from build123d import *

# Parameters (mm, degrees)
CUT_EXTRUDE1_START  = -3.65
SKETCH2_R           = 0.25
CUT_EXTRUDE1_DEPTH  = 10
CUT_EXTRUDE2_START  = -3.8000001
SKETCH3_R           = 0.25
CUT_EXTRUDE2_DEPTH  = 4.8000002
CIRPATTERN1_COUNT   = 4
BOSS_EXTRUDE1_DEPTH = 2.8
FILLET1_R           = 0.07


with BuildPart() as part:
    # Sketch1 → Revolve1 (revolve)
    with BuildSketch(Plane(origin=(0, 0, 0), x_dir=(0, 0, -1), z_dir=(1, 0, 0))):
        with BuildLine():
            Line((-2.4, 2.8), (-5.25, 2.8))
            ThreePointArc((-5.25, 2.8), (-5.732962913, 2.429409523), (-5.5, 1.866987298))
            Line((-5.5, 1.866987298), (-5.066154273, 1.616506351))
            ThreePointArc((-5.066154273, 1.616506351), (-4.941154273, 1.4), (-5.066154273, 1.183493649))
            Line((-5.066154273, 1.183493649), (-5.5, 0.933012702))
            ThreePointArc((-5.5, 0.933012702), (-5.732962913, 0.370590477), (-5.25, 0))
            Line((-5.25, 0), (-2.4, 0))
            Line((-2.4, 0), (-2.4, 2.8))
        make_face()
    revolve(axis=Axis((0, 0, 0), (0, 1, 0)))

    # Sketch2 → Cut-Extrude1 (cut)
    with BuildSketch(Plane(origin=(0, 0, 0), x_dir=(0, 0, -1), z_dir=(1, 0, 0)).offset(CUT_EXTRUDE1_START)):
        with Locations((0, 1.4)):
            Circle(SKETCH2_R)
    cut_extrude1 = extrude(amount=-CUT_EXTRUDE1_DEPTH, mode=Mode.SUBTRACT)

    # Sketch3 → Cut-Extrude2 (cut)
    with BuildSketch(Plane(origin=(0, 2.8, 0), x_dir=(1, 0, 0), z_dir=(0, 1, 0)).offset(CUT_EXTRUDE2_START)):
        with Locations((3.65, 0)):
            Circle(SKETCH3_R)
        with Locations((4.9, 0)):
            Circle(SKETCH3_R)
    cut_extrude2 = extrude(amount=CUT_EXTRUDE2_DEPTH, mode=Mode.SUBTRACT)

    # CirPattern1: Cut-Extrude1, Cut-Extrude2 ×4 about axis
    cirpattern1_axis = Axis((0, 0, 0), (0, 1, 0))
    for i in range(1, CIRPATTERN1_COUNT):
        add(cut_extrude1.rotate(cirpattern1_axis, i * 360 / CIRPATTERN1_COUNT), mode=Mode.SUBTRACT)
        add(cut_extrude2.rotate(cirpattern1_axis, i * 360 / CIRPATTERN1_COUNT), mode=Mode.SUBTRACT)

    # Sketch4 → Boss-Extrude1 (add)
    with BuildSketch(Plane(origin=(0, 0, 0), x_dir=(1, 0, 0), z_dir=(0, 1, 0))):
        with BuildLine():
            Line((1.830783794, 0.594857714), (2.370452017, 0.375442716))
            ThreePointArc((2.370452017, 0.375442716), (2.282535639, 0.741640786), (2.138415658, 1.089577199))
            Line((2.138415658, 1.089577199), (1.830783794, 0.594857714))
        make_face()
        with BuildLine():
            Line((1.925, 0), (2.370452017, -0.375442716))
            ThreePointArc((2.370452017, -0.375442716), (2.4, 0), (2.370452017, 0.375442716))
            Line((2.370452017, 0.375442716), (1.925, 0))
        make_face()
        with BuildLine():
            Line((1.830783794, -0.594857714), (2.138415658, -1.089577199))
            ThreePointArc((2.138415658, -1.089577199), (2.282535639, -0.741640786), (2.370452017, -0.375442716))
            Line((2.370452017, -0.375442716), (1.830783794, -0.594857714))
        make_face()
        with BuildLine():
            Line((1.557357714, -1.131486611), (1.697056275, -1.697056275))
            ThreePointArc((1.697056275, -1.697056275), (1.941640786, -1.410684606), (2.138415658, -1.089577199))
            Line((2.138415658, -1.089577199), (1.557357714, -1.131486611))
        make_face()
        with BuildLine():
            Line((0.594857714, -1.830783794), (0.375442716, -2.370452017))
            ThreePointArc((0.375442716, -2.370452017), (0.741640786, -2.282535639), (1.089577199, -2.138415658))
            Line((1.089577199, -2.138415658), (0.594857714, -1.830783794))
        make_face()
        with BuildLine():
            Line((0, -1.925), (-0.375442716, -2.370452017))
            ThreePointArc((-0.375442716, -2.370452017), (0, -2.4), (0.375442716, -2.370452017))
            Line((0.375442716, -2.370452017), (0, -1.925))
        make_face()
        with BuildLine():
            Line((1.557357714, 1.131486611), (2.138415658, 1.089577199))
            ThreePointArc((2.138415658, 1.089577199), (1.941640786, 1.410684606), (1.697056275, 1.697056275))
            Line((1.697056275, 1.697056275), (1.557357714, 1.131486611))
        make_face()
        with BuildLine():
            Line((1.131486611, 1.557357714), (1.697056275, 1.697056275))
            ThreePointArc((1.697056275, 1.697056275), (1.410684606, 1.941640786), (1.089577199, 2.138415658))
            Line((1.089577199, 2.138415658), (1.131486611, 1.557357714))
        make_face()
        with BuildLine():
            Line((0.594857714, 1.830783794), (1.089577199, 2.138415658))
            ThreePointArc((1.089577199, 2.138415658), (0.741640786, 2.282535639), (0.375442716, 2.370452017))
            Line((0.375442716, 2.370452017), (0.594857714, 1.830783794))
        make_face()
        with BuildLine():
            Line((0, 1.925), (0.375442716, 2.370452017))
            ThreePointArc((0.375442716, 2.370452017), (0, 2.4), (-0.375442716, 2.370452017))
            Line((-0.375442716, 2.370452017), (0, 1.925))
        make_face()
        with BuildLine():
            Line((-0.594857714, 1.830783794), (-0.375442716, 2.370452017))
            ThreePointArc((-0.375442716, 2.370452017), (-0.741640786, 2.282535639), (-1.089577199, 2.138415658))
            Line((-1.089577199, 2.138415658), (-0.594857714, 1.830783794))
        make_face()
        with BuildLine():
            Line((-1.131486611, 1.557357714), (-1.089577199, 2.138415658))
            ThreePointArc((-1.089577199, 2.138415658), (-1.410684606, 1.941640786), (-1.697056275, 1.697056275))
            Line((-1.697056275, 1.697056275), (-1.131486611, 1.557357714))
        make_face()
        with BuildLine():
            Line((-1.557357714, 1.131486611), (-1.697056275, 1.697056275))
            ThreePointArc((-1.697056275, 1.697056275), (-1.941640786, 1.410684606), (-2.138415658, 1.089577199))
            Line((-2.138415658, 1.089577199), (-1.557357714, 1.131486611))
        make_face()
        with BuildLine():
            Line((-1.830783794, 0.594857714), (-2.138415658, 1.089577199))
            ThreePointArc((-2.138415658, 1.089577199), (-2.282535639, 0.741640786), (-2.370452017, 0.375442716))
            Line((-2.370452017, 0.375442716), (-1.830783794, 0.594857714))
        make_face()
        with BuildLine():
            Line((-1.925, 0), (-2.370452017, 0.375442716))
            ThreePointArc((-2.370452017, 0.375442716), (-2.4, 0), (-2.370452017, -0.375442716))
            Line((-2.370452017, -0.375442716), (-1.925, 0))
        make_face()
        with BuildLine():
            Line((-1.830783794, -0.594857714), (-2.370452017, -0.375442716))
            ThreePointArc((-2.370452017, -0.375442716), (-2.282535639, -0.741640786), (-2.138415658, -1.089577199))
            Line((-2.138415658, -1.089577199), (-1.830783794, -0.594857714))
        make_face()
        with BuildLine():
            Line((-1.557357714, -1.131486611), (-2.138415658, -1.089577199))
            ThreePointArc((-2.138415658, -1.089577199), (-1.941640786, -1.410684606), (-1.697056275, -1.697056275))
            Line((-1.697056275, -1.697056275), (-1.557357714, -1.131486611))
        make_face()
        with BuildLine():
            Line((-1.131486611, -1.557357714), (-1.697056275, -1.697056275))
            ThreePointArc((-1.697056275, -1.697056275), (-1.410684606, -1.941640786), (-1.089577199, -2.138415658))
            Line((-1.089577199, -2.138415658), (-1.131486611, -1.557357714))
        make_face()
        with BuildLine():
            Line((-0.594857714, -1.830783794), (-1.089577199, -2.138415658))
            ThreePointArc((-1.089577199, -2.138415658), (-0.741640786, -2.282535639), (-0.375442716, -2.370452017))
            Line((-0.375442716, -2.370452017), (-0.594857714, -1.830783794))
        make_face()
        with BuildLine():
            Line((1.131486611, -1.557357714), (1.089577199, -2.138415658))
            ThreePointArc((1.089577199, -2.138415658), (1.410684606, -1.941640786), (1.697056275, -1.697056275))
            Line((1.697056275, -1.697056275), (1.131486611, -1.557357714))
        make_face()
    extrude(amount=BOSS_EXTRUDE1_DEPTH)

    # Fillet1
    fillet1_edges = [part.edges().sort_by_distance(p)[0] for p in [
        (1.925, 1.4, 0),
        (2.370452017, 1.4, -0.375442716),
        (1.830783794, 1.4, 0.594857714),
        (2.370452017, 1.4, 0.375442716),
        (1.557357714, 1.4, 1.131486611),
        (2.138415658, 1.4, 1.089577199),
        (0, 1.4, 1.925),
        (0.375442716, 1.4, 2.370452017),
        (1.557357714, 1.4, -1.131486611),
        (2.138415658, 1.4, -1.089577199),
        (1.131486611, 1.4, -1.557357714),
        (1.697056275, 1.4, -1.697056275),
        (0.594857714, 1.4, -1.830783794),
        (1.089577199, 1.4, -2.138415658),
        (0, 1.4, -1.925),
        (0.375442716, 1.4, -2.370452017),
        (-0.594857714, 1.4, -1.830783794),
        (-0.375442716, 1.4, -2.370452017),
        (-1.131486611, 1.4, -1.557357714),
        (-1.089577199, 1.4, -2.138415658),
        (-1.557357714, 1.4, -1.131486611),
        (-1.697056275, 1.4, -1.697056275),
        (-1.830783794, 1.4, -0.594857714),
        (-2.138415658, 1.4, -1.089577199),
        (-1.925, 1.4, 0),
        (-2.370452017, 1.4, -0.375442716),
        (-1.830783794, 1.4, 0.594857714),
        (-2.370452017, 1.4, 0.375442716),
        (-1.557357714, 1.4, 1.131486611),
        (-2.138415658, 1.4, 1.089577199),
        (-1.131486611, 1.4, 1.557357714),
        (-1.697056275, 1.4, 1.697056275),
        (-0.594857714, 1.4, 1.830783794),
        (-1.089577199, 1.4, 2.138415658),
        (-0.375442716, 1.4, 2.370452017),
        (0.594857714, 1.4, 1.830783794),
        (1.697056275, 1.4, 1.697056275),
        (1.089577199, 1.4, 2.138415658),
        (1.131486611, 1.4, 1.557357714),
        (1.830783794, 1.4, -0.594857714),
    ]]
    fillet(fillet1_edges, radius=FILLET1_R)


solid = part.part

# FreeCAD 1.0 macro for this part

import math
import FreeCAD as App
import Part
import Sketcher

V = App.Vector
Q = App.Units.Quantity


def edges_at(feature, points):
    """Names of the edges that pass closest to the given points."""
    edges = feature.Shape.Edges
    near = lambda p: min(range(len(edges)), key=lambda i: edges[i].distToShape(Part.Vertex(*p))[0])
    return sorted({f"Edge{near(p) + 1}" for p in points})

doc = App.newDocument("Part")
params = doc.addObject("Spreadsheet::Sheet", "Params")
for row, (alias, value) in enumerate([
    ("sketch1_radius", "0.5 mm"),
    ("sketch1_radius2", "0.25 mm"),
    ("sketch1_width", "2.8 mm"),
    ("sketch1_height", "2.85 mm"),
    ("revolution_angle", "360 deg"),
    ("sketch2_diameter", "0.5 mm"),
    ("pocket1_length", "10 mm"),
    ("sketch3_diameter", "0.5 mm"),
    ("pocket2_length", "4.8 mm"),
    ("sketch4_radius", "2.4 mm"),
    ("pad1_length", "2.8 mm"),
    ("fillet_radius", "0.07 mm"),
], start=1):
    params.set(f"A{row}", alias)
    params.set(f"B{row}", "=" + value)
    params.setAlias(f"B{row}", alias)

body = doc.addObject("PartDesign::Body", "Body")

# Sketch on YZ plane
sketch1 = body.newObject("Sketcher::SketchObject", "Sketch")
sketch1.AttachmentSupport = (doc.getObject("YZ_Plane"), [""])
sketch1.MapMode = "FlatFace"
sketch1.addGeometry(Part.LineSegment(V(2.8, 2.4, 0), V(2.8, 5.25, 0)), False)
sketch1.addGeometry(Part.ArcOfCircle(Part.Circle(V(2.3, 5.25, 0), V(0, 0, 1), 0.5), math.radians(0), math.radians(150)), False)
sketch1.addGeometry(Part.LineSegment(V(1.87, 5.5, 0), V(1.62, 5.07, 0)), False)
sketch1.addGeometry(Part.ArcOfCircle(Part.Circle(V(1.4, 5.19, 0), V(0, 0, 1), 0.25), math.radians(-150), math.radians(-30)), False)
sketch1.addGeometry(Part.LineSegment(V(1.18, 5.07, 0), V(0.93, 5.5, 0)), False)
sketch1.addGeometry(Part.ArcOfCircle(Part.Circle(V(0.5, 5.25, 0), V(0, 0, 1), 0.5), math.radians(30), math.radians(180)), False)
sketch1.addGeometry(Part.LineSegment(V(0, 5.25, 0), V(0, 2.4, 0)), False)
sketch1.addGeometry(Part.LineSegment(V(0, 2.4, 0), V(2.8, 2.4, 0)), False)
sketch1.addConstraint(Sketcher.Constraint("Tangent", 0, 2, 1, 1))
sketch1.addConstraint(Sketcher.Constraint("Tangent", 1, 2, 2, 1))
sketch1.addConstraint(Sketcher.Constraint("Tangent", 2, 2, 3, 2))
sketch1.addConstraint(Sketcher.Constraint("Tangent", 3, 1, 4, 1))
sketch1.addConstraint(Sketcher.Constraint("Tangent", 4, 2, 5, 1))
sketch1.addConstraint(Sketcher.Constraint("Tangent", 5, 2, 6, 1))
sketch1.addConstraint(Sketcher.Constraint("Coincident", 6, 2, 7, 1))
sketch1.addConstraint(Sketcher.Constraint("Coincident", 7, 2, 0, 1))
sketch1.addConstraint(Sketcher.Constraint("Vertical", 0))
sketch1.addConstraint(Sketcher.Constraint("Vertical", 6))
sketch1.addConstraint(Sketcher.Constraint("Horizontal", 7))
sketch1.addConstraint(Sketcher.Constraint("Equal", 1, 5))
sketch1.addConstraint(Sketcher.Constraint("PointOnObject", 5, 2, -2))
sketch1.addConstraint(Sketcher.Constraint("Horizontal", 1, 3, 5, 3))
sketch1.addConstraint(Sketcher.Constraint("Horizontal", 2, 2, 3, 1))
sketch1.addConstraint(Sketcher.Constraint("Radius", 1, 0.5))
sketch1.addConstraint(Sketcher.Constraint("Angle", 2, Q("-120 deg")))
sketch1.addConstraint(Sketcher.Constraint("Radius", 3, 0.25))
sketch1.addConstraint(Sketcher.Constraint("DistanceX", 7, 1, 7, 2, 2.8))
sketch1.addConstraint(Sketcher.Constraint("DistanceY", 0, 1, 0, 2, 2.85))
sketch1.addConstraint(Sketcher.Constraint("DistanceY", -1, 1, 1, 2, 5.5))
sketch1.setExpression("Constraints[15]", "Params.sketch1_radius")
sketch1.setExpression("Constraints[17]", "Params.sketch1_radius2")
sketch1.setExpression("Constraints[18]", "Params.sketch1_width")
sketch1.setExpression("Constraints[19]", "Params.sketch1_height")
revolution = body.newObject("PartDesign::Revolution", "Revolution")
revolution.Profile = sketch1
revolution.ReferenceAxis = (sketch1, ["H_Axis"])
revolution.setExpression("Angle", "Params.revolution_angle")

# Sketch on YZ plane
sketch2 = body.newObject("Sketcher::SketchObject", "Sketch001")
sketch2.AttachmentSupport = (doc.getObject("YZ_Plane"), [""])
sketch2.MapMode = "FlatFace"
sketch2.AttachmentOffset = App.Placement(V(0, 0, -3.65), App.Rotation())
sketch2.addGeometry(Part.Circle(V(1.4, 0, 0), V(0, 0, 1), 0.25), False)
sketch2.addConstraint(Sketcher.Constraint("PointOnObject", 0, 3, -1))
sketch2.addConstraint(Sketcher.Constraint("Diameter", 0, 0.5))
sketch2.addConstraint(Sketcher.Constraint("DistanceX", -1, 1, 0, 3, 1.4))
sketch2.setExpression("Constraints[1]", "Params.sketch2_diameter")
pocket1 = body.newObject("PartDesign::Pocket", "Pocket")
pocket1.Profile = sketch2
pocket1.setExpression("Length", "Params.pocket1_length")

# Sketch on XZ plane
sketch3 = body.newObject("Sketcher::SketchObject", "Sketch002")
sketch3.AttachmentSupport = (doc.getObject("XZ_Plane"), [""])
sketch3.MapMode = "FlatFace"
sketch3.AttachmentOffset = App.Placement(V(0, 0, 1), App.Rotation())
sketch3.addGeometry(Part.Circle(V(3.65, 0, 0), V(0, 0, 1), 0.25), False)
sketch3.addGeometry(Part.Circle(V(4.9, 0, 0), V(0, 0, 1), 0.25), False)
sketch3.addConstraint(Sketcher.Constraint("Equal", 0, 1))
sketch3.addConstraint(Sketcher.Constraint("PointOnObject", 0, 3, -1))
sketch3.addConstraint(Sketcher.Constraint("PointOnObject", 1, 3, -1))
sketch3.addConstraint(Sketcher.Constraint("Diameter", 0, 0.5))
sketch3.addConstraint(Sketcher.Constraint("DistanceX", -1, 1, 1, 3, 4.9))
sketch3.addConstraint(Sketcher.Constraint("DistanceX", -1, 1, 0, 3, 3.65))
sketch3.setExpression("Constraints[3]", "Params.sketch3_diameter")
pocket2 = body.newObject("PartDesign::Pocket", "Pocket001")
pocket2.Profile = sketch3
pocket2.setExpression("Length", "Params.pocket2_length")
doc.recompute()

polarpattern = body.newObject("PartDesign::PolarPattern", "PolarPattern")
polarpattern.Originals = [pocket1, pocket2]
polarpattern.Axis = (doc.getObject("Y_Axis"), [""])
polarpattern.Angle = 360
polarpattern.Occurrences = 4
body.Tip = polarpattern

# Sketch on XZ plane
sketch4 = body.newObject("Sketcher::SketchObject", "Sketch003")
sketch4.AttachmentSupport = (doc.getObject("XZ_Plane"), [""])
sketch4.MapMode = "FlatFace"
sketch4.addGeometry(Part.LineSegment(V(1.8, -0.6, 0), V(2.4, -0.4, 0)), False)
sketch4.addGeometry(Part.ArcOfCircle(Part.Circle(V(0, 0, 0), V(0, 0, 1), 2.4), math.radians(-27), math.radians(-9)), False)
sketch4.addGeometry(Part.LineSegment(V(2.1, -1.1, 0), V(1.8, -0.6, 0)), False)
sketch4.addGeometry(Part.LineSegment(V(1.9, 0, 0), V(2.4, 0.4, 0)), False)
sketch4.addGeometry(Part.ArcOfCircle(Part.Circle(V(0, 0, 0), V(0, 0, 1), 2.4), math.radians(-9), math.radians(9)), False)
sketch4.addGeometry(Part.LineSegment(V(2.4, -0.4, 0), V(1.9, 0, 0)), False)
sketch4.addGeometry(Part.LineSegment(V(1.8, 0.6, 0), V(2.1, 1.1, 0)), False)
sketch4.addGeometry(Part.ArcOfCircle(Part.Circle(V(0, 0, 0), V(0, 0, 1), 2.4), math.radians(9), math.radians(27)), False)
sketch4.addGeometry(Part.LineSegment(V(2.4, 0.4, 0), V(1.8, 0.6, 0)), False)
sketch4.addGeometry(Part.LineSegment(V(1.6, 1.1, 0), V(1.7, 1.7, 0)), False)
sketch4.addGeometry(Part.ArcOfCircle(Part.Circle(V(0, 0, 0), V(0, 0, 1), 2.4), math.radians(27), math.radians(45)), False)
sketch4.addGeometry(Part.LineSegment(V(2.1, 1.1, 0), V(1.6, 1.1, 0)), False)
sketch4.addGeometry(Part.LineSegment(V(0.6, 1.8, 0), V(0.4, 2.4, 0)), False)
sketch4.addGeometry(Part.ArcOfCircle(Part.Circle(V(0, 0, 0), V(0, 0, 1), 2.4), math.radians(63), math.radians(81)), False)
sketch4.addGeometry(Part.LineSegment(V(1.1, 2.1, 0), V(0.6, 1.8, 0)), False)
sketch4.addGeometry(Part.LineSegment(V(0, 1.9, 0), V(-0.4, 2.4, 0)), False)
sketch4.addGeometry(Part.ArcOfCircle(Part.Circle(V(0, 0, 0), V(0, 0, 1), 2.4), math.radians(81), math.radians(99)), False)
sketch4.addGeometry(Part.LineSegment(V(0.4, 2.4, 0), V(0, 1.9, 0)), False)
sketch4.addGeometry(Part.LineSegment(V(1.6, -1.1, 0), V(2.1, -1.1, 0)), False)
sketch4.addGeometry(Part.ArcOfCircle(Part.Circle(V(0, 0, 0), V(0, 0, 1), 2.4), math.radians(-45), math.radians(-27)), False)
sketch4.addGeometry(Part.LineSegment(V(1.7, -1.7, 0), V(1.6, -1.1, 0)), False)
sketch4.addGeometry(Part.LineSegment(V(1.1, -1.6, 0), V(1.7, -1.7, 0)), False)
sketch4.addGeometry(Part.ArcOfCircle(Part.Circle(V(0, 0, 0), V(0, 0, 1), 2.4), math.radians(-63), math.radians(-45)), False)
sketch4.addGeometry(Part.LineSegment(V(1.1, -2.1, 0), V(1.1, -1.6, 0)), False)
sketch4.addGeometry(Part.LineSegment(V(0.6, -1.8, 0), V(1.1, -2.1, 0)), False)
sketch4.addGeometry(Part.ArcOfCircle(Part.Circle(V(0, 0, 0), V(0, 0, 1), 2.4), math.radians(-81), math.radians(-63)), False)
sketch4.addGeometry(Part.LineSegment(V(0.4, -2.4, 0), V(0.6, -1.8, 0)), False)
sketch4.addGeometry(Part.LineSegment(V(0, -1.9, 0), V(0.4, -2.4, 0)), False)
sketch4.addGeometry(Part.ArcOfCircle(Part.Circle(V(0, 0, 0), V(0, 0, 1), 2.4), math.radians(-99), math.radians(-81)), False)
sketch4.addGeometry(Part.LineSegment(V(-0.4, -2.4, 0), V(0, -1.9, 0)), False)
sketch4.addGeometry(Part.LineSegment(V(-0.6, -1.8, 0), V(-0.4, -2.4, 0)), False)
sketch4.addGeometry(Part.ArcOfCircle(Part.Circle(V(0, 0, 0), V(0, 0, 1), 2.4), math.radians(-117), math.radians(-99)), False)
sketch4.addGeometry(Part.LineSegment(V(-1.1, -2.1, 0), V(-0.6, -1.8, 0)), False)
sketch4.addGeometry(Part.LineSegment(V(-1.1, -1.6, 0), V(-1.1, -2.1, 0)), False)
sketch4.addGeometry(Part.ArcOfCircle(Part.Circle(V(0, 0, 0), V(0, 0, 1), 2.4), math.radians(-135), math.radians(-117)), False)
sketch4.addGeometry(Part.LineSegment(V(-1.7, -1.7, 0), V(-1.1, -1.6, 0)), False)
sketch4.addGeometry(Part.LineSegment(V(-1.6, -1.1, 0), V(-1.7, -1.7, 0)), False)
sketch4.addGeometry(Part.ArcOfCircle(Part.Circle(V(0, 0, 0), V(0, 0, 1), 2.4), math.radians(-153), math.radians(-135)), False)
sketch4.addGeometry(Part.LineSegment(V(-2.1, -1.1, 0), V(-1.6, -1.1, 0)), False)
sketch4.addGeometry(Part.LineSegment(V(-1.8, -0.6, 0), V(-2.1, -1.1, 0)), False)
sketch4.addGeometry(Part.ArcOfCircle(Part.Circle(V(0, 0, 0), V(0, 0, 1), 2.4), math.radians(-171), math.radians(-153)), False)
sketch4.addGeometry(Part.LineSegment(V(-2.4, -0.4, 0), V(-1.8, -0.6, 0)), False)
sketch4.addGeometry(Part.LineSegment(V(-1.9, 0, 0), V(-2.4, -0.4, 0)), False)
sketch4.addGeometry(Part.ArcOfCircle(Part.Circle(V(0, 0, 0), V(0, 0, 1), 2.4), math.radians(171), math.radians(189)), False)
sketch4.addGeometry(Part.LineSegment(V(-2.4, 0.4, 0), V(-1.9, 0, 0)), False)
sketch4.addGeometry(Part.LineSegment(V(-1.8, 0.6, 0), V(-2.4, 0.4, 0)), False)
sketch4.addGeometry(Part.ArcOfCircle(Part.Circle(V(0, 0, 0), V(0, 0, 1), 2.4), math.radians(153), math.radians(171)), False)
sketch4.addGeometry(Part.LineSegment(V(-2.1, 1.1, 0), V(-1.8, 0.6, 0)), False)
sketch4.addGeometry(Part.LineSegment(V(-1.6, 1.1, 0), V(-2.1, 1.1, 0)), False)
sketch4.addGeometry(Part.ArcOfCircle(Part.Circle(V(0, 0, 0), V(0, 0, 1), 2.4), math.radians(135), math.radians(153)), False)
sketch4.addGeometry(Part.LineSegment(V(-1.7, 1.7, 0), V(-1.6, 1.1, 0)), False)
sketch4.addGeometry(Part.LineSegment(V(-1.1, 1.6, 0), V(-1.7, 1.7, 0)), False)
sketch4.addGeometry(Part.ArcOfCircle(Part.Circle(V(0, 0, 0), V(0, 0, 1), 2.4), math.radians(117), math.radians(135)), False)
sketch4.addGeometry(Part.LineSegment(V(-1.1, 2.1, 0), V(-1.1, 1.6, 0)), False)
sketch4.addGeometry(Part.LineSegment(V(-0.6, 1.8, 0), V(-1.1, 2.1, 0)), False)
sketch4.addGeometry(Part.ArcOfCircle(Part.Circle(V(0, 0, 0), V(0, 0, 1), 2.4), math.radians(99), math.radians(117)), False)
sketch4.addGeometry(Part.LineSegment(V(-0.4, 2.4, 0), V(-0.6, 1.8, 0)), False)
sketch4.addGeometry(Part.LineSegment(V(1.1, 1.6, 0), V(1.1, 2.1, 0)), False)
sketch4.addGeometry(Part.ArcOfCircle(Part.Circle(V(0, 0, 0), V(0, 0, 1), 2.4), math.radians(45), math.radians(63)), False)
sketch4.addGeometry(Part.LineSegment(V(1.7, 1.7, 0), V(1.1, 1.6, 0)), False)
sketch4.addConstraint(Sketcher.Constraint("Coincident", 0, 2, 1, 2))
sketch4.addConstraint(Sketcher.Constraint("Coincident", 1, 1, 2, 1))
sketch4.addConstraint(Sketcher.Constraint("Coincident", 2, 2, 0, 1))
sketch4.addConstraint(Sketcher.Constraint("Coincident", 3, 2, 4, 2))
sketch4.addConstraint(Sketcher.Constraint("Coincident", 4, 1, 5, 1))
sketch4.addConstraint(Sketcher.Constraint("Coincident", 5, 2, 3, 1))
sketch4.addConstraint(Sketcher.Constraint("Coincident", 6, 2, 7, 2))
sketch4.addConstraint(Sketcher.Constraint("Coincident", 7, 1, 8, 1))
sketch4.addConstraint(Sketcher.Constraint("Coincident", 8, 2, 6, 1))
sketch4.addConstraint(Sketcher.Constraint("Coincident", 9, 2, 10, 2))
sketch4.addConstraint(Sketcher.Constraint("Coincident", 10, 1, 11, 1))
sketch4.addConstraint(Sketcher.Constraint("Coincident", 11, 2, 9, 1))
sketch4.addConstraint(Sketcher.Constraint("Coincident", 12, 2, 13, 2))
sketch4.addConstraint(Sketcher.Constraint("Coincident", 13, 1, 14, 1))
sketch4.addConstraint(Sketcher.Constraint("Coincident", 14, 2, 12, 1))
sketch4.addConstraint(Sketcher.Constraint("Coincident", 15, 2, 16, 2))
sketch4.addConstraint(Sketcher.Constraint("Coincident", 16, 1, 17, 1))
sketch4.addConstraint(Sketcher.Constraint("Coincident", 17, 2, 15, 1))
sketch4.addConstraint(Sketcher.Constraint("Coincident", 18, 2, 19, 2))
sketch4.addConstraint(Sketcher.Constraint("Coincident", 19, 1, 20, 1))
sketch4.addConstraint(Sketcher.Constraint("Coincident", 20, 2, 18, 1))
sketch4.addConstraint(Sketcher.Constraint("Coincident", 21, 2, 22, 2))
sketch4.addConstraint(Sketcher.Constraint("Coincident", 22, 1, 23, 1))
sketch4.addConstraint(Sketcher.Constraint("Coincident", 23, 2, 21, 1))
sketch4.addConstraint(Sketcher.Constraint("Coincident", 24, 2, 25, 2))
sketch4.addConstraint(Sketcher.Constraint("Coincident", 25, 1, 26, 1))
sketch4.addConstraint(Sketcher.Constraint("Coincident", 26, 2, 24, 1))
sketch4.addConstraint(Sketcher.Constraint("Coincident", 27, 2, 28, 2))
sketch4.addConstraint(Sketcher.Constraint("Coincident", 28, 1, 29, 1))
sketch4.addConstraint(Sketcher.Constraint("Coincident", 29, 2, 27, 1))
sketch4.addConstraint(Sketcher.Constraint("Coincident", 30, 2, 31, 2))
sketch4.addConstraint(Sketcher.Constraint("Coincident", 31, 1, 32, 1))
sketch4.addConstraint(Sketcher.Constraint("Coincident", 32, 2, 30, 1))
sketch4.addConstraint(Sketcher.Constraint("Coincident", 33, 2, 34, 2))
sketch4.addConstraint(Sketcher.Constraint("Coincident", 34, 1, 35, 1))
sketch4.addConstraint(Sketcher.Constraint("Coincident", 35, 2, 33, 1))
sketch4.addConstraint(Sketcher.Constraint("Coincident", 36, 2, 37, 2))
sketch4.addConstraint(Sketcher.Constraint("Coincident", 37, 1, 38, 1))
sketch4.addConstraint(Sketcher.Constraint("Coincident", 38, 2, 36, 1))
sketch4.addConstraint(Sketcher.Constraint("Coincident", 39, 2, 40, 2))
sketch4.addConstraint(Sketcher.Constraint("Coincident", 40, 1, 41, 1))
sketch4.addConstraint(Sketcher.Constraint("Coincident", 41, 2, 39, 1))
sketch4.addConstraint(Sketcher.Constraint("Coincident", 42, 2, 43, 2))
sketch4.addConstraint(Sketcher.Constraint("Coincident", 43, 1, 44, 1))
sketch4.addConstraint(Sketcher.Constraint("Coincident", 44, 2, 42, 1))
sketch4.addConstraint(Sketcher.Constraint("Coincident", 45, 2, 46, 2))
sketch4.addConstraint(Sketcher.Constraint("Coincident", 46, 1, 47, 1))
sketch4.addConstraint(Sketcher.Constraint("Coincident", 47, 2, 45, 1))
sketch4.addConstraint(Sketcher.Constraint("Coincident", 48, 2, 49, 2))
sketch4.addConstraint(Sketcher.Constraint("Coincident", 49, 1, 50, 1))
sketch4.addConstraint(Sketcher.Constraint("Coincident", 50, 2, 48, 1))
sketch4.addConstraint(Sketcher.Constraint("Coincident", 51, 2, 52, 2))
sketch4.addConstraint(Sketcher.Constraint("Coincident", 52, 1, 53, 1))
sketch4.addConstraint(Sketcher.Constraint("Coincident", 53, 2, 51, 1))
sketch4.addConstraint(Sketcher.Constraint("Coincident", 54, 2, 55, 2))
sketch4.addConstraint(Sketcher.Constraint("Coincident", 55, 1, 56, 1))
sketch4.addConstraint(Sketcher.Constraint("Coincident", 56, 2, 54, 1))
sketch4.addConstraint(Sketcher.Constraint("Coincident", 57, 2, 58, 2))
sketch4.addConstraint(Sketcher.Constraint("Coincident", 58, 1, 59, 1))
sketch4.addConstraint(Sketcher.Constraint("Coincident", 59, 2, 57, 1))
sketch4.addConstraint(Sketcher.Constraint("Coincident", 1, 3, -1, 1))
sketch4.addConstraint(Sketcher.Constraint("Coincident", 4, 3, -1, 1))
sketch4.addConstraint(Sketcher.Constraint("Coincident", 7, 3, -1, 1))
sketch4.addConstraint(Sketcher.Constraint("Coincident", 10, 3, -1, 1))
sketch4.addConstraint(Sketcher.Constraint("Coincident", 13, 3, -1, 1))
sketch4.addConstraint(Sketcher.Constraint("Coincident", 16, 3, -1, 1))
sketch4.addConstraint(Sketcher.Constraint("Coincident", 19, 3, -1, 1))
sketch4.addConstraint(Sketcher.Constraint("Coincident", 22, 3, -1, 1))
sketch4.addConstraint(Sketcher.Constraint("Coincident", 25, 3, -1, 1))
sketch4.addConstraint(Sketcher.Constraint("Coincident", 28, 3, -1, 1))
sketch4.addConstraint(Sketcher.Constraint("Coincident", 31, 3, -1, 1))
sketch4.addConstraint(Sketcher.Constraint("Coincident", 34, 3, -1, 1))
sketch4.addConstraint(Sketcher.Constraint("Coincident", 37, 3, -1, 1))
sketch4.addConstraint(Sketcher.Constraint("Coincident", 40, 3, -1, 1))
sketch4.addConstraint(Sketcher.Constraint("Coincident", 43, 3, -1, 1))
sketch4.addConstraint(Sketcher.Constraint("Coincident", 46, 3, -1, 1))
sketch4.addConstraint(Sketcher.Constraint("Coincident", 49, 3, -1, 1))
sketch4.addConstraint(Sketcher.Constraint("Coincident", 52, 3, -1, 1))
sketch4.addConstraint(Sketcher.Constraint("Coincident", 55, 3, -1, 1))
sketch4.addConstraint(Sketcher.Constraint("Coincident", 58, 3, -1, 1))
sketch4.addConstraint(Sketcher.Constraint("Coincident", 4, 1, 0, 2))
sketch4.addConstraint(Sketcher.Constraint("Coincident", 7, 1, 3, 2))
sketch4.addConstraint(Sketcher.Constraint("Coincident", 10, 1, 6, 2))
sketch4.addConstraint(Sketcher.Constraint("Coincident", 16, 1, 12, 2))
sketch4.addConstraint(Sketcher.Constraint("Coincident", 18, 2, 1, 1))
sketch4.addConstraint(Sketcher.Constraint("Coincident", 21, 2, 19, 1))
sketch4.addConstraint(Sketcher.Constraint("Coincident", 24, 2, 22, 1))
sketch4.addConstraint(Sketcher.Constraint("Coincident", 27, 2, 25, 1))
sketch4.addConstraint(Sketcher.Constraint("Coincident", 30, 2, 28, 1))
sketch4.addConstraint(Sketcher.Constraint("Coincident", 33, 2, 31, 1))
sketch4.addConstraint(Sketcher.Constraint("Coincident", 36, 2, 34, 1))
sketch4.addConstraint(Sketcher.Constraint("Coincident", 39, 2, 37, 1))
sketch4.addConstraint(Sketcher.Constraint("Coincident", 42, 2, 40, 1))
sketch4.addConstraint(Sketcher.Constraint("Coincident", 45, 2, 43, 1))
sketch4.addConstraint(Sketcher.Constraint("Coincident", 48, 2, 46, 1))
sketch4.addConstraint(Sketcher.Constraint("Coincident", 51, 2, 49, 1))
sketch4.addConstraint(Sketcher.Constraint("Coincident", 54, 2, 52, 1))
sketch4.addConstraint(Sketcher.Constraint("Coincident", 55, 1, 15, 2))
sketch4.addConstraint(Sketcher.Constraint("Coincident", 57, 2, 13, 1))
sketch4.addConstraint(Sketcher.Constraint("Symmetric", 17, 2, 29, 2, -1, 1))
sketch4.addConstraint(Sketcher.Constraint("Symmetric", 14, 2, 32, 2, -1, 1))
sketch4.addConstraint(Sketcher.Constraint("Symmetric", 11, 2, 38, 2, -1, 1))
sketch4.addConstraint(Sketcher.Constraint("Symmetric", 8, 2, 41, 2, -1, 1))
sketch4.addConstraint(Sketcher.Constraint("Symmetric", 5, 2, 44, 2, -1, 1))
sketch4.addConstraint(Sketcher.Constraint("Symmetric", 2, 2, 47, 2, -1, 1))
sketch4.addConstraint(Sketcher.Constraint("Symmetric", 20, 2, 50, 2, -1, 1))
sketch4.addConstraint(Sketcher.Constraint("Symmetric", 23, 2, 53, 2, -1, 1))
sketch4.addConstraint(Sketcher.Constraint("Symmetric", 26, 2, 56, 2, -1, 1))
sketch4.addConstraint(Sketcher.Constraint("Symmetric", 35, 2, 59, 2, -1, 1))
sketch4.addConstraint(Sketcher.Constraint("Symmetric", 26, 2, 32, 2, -2))
sketch4.addConstraint(Sketcher.Constraint("Symmetric", 23, 2, 35, 2, -2))
sketch4.addConstraint(Sketcher.Constraint("Symmetric", 20, 2, 38, 2, -2))
sketch4.addConstraint(Sketcher.Constraint("Symmetric", 2, 2, 41, 2, -2))
sketch4.addConstraint(Sketcher.Constraint("PointOnObject", 5, 2, -1))
sketch4.addConstraint(Sketcher.Constraint("PointOnObject", 17, 2, -2))
sketch4.addConstraint(Sketcher.Constraint("Perpendicular", 0, 12))
sketch4.addConstraint(Sketcher.Constraint("Perpendicular", 2, 14))
sketch4.addConstraint(Sketcher.Constraint("Perpendicular", 3, 15))
sketch4.addConstraint(Sketcher.Constraint("Perpendicular", 5, 17))
sketch4.addConstraint(Sketcher.Constraint("Perpendicular", 9, 21))
sketch4.addConstraint(Sketcher.Constraint("Perpendicular", 11, 23))
sketch4.addConstraint(Sketcher.Constraint("Perpendicular", 6, 24))
sketch4.addConstraint(Sketcher.Constraint("Perpendicular", 8, 26))
sketch4.addConstraint(Sketcher.Constraint("Parallel", 17, 29))
sketch4.addConstraint(Sketcher.Constraint("Parallel", 14, 32))
sketch4.addConstraint(Sketcher.Constraint("Perpendicular", 20, 35))
sketch4.addConstraint(Sketcher.Constraint("Perpendicular", 23, 38))
sketch4.addConstraint(Sketcher.Constraint("Perpendicular", 26, 41))
sketch4.addConstraint(Sketcher.Constraint("Perpendicular", 29, 44))
sketch4.addConstraint(Sketcher.Constraint("Perpendicular", 32, 47))
sketch4.addConstraint(Sketcher.Constraint("Perpendicular", 35, 50))
sketch4.addConstraint(Sketcher.Constraint("Perpendicular", 38, 53))
sketch4.addConstraint(Sketcher.Constraint("Perpendicular", 50, 59))
sketch4.addConstraint(Sketcher.Constraint("Horizontal", 12, 2, 15, 2))
sketch4.addConstraint(Sketcher.Constraint("Horizontal", 24, 2, 31, 1))
sketch4.addConstraint(Sketcher.Constraint("Horizontal", 21, 2, 34, 1))
sketch4.addConstraint(Sketcher.Constraint("Equal", 0, 2))
sketch4.addConstraint(Sketcher.Constraint("Equal", 2, 3))
sketch4.addConstraint(Sketcher.Constraint("Equal", 8, 9))
sketch4.addConstraint(Sketcher.Constraint("Equal", 9, 11))
sketch4.addConstraint(Sketcher.Constraint("Equal", 11, 12))
sketch4.addConstraint(Sketcher.Constraint("Equal", 12, 14))
sketch4.addConstraint(Sketcher.Constraint("Equal", 20, 21))
sketch4.addConstraint(Sketcher.Constraint("Radius", 1, 2.4))
sketch4.addConstraint(Sketcher.Constraint("DistanceX", -1, 1, 5, 2, 1.925))
sketch4.addConstraint(Sketcher.Constraint("Distance", 0, 0.582567))
sketch4.addConstraint(Sketcher.Constraint("DistanceX", -1, 1, 1, 1, 2.138416))
sketch4.setExpression("Constraints[143]", "Params.sketch4_radius")
pad1 = body.newObject("PartDesign::Pad", "Pad")
pad1.Profile = sketch4
pad1.setExpression("Length", "Params.pad1_length")
pad1.Reversed = True
doc.recompute()

fillet = body.newObject("PartDesign::Fillet", "Fillet")
fillet.Base = (pad1, edges_at(pad1, [
    (1.925, 1.4, 0),
    (2.37, 1.4, -0.375),
    (1.831, 1.4, 0.595),
    (2.37, 1.4, 0.375),
    (1.557, 1.4, 1.131),
    (2.138, 1.4, 1.09),
    (0, 1.4, 1.925),
    (0.375, 1.4, 2.37),
    (1.557, 1.4, -1.131),
    (2.138, 1.4, -1.09),
    (1.131, 1.4, -1.557),
    (1.697, 1.4, -1.697),
    (0.595, 1.4, -1.831),
    (1.09, 1.4, -2.138),
    (0, 1.4, -1.925),
    (0.375, 1.4, -2.37),
    (-0.595, 1.4, -1.831),
    (-0.375, 1.4, -2.37),
    (-1.131, 1.4, -1.557),
    (-1.09, 1.4, -2.138),
    (-1.557, 1.4, -1.131),
    (-1.697, 1.4, -1.697),
    (-1.831, 1.4, -0.595),
    (-2.138, 1.4, -1.09),
    (-1.925, 1.4, 0),
    (-2.37, 1.4, -0.375),
    (-1.831, 1.4, 0.595),
    (-2.37, 1.4, 0.375),
    (-1.557, 1.4, 1.131),
    (-2.138, 1.4, 1.09),
    (-1.131, 1.4, 1.557),
    (-1.697, 1.4, 1.697),
    (-0.595, 1.4, 1.831),
    (-1.09, 1.4, 2.138),
    (-0.375, 1.4, 2.37),
    (0.595, 1.4, 1.831),
    (1.697, 1.4, 1.697),
    (1.09, 1.4, 2.138),
    (1.131, 1.4, 1.557),
    (1.831, 1.4, -0.595),
]))
fillet.setExpression("Radius", "Params.fillet_radius")

doc.recompute()
